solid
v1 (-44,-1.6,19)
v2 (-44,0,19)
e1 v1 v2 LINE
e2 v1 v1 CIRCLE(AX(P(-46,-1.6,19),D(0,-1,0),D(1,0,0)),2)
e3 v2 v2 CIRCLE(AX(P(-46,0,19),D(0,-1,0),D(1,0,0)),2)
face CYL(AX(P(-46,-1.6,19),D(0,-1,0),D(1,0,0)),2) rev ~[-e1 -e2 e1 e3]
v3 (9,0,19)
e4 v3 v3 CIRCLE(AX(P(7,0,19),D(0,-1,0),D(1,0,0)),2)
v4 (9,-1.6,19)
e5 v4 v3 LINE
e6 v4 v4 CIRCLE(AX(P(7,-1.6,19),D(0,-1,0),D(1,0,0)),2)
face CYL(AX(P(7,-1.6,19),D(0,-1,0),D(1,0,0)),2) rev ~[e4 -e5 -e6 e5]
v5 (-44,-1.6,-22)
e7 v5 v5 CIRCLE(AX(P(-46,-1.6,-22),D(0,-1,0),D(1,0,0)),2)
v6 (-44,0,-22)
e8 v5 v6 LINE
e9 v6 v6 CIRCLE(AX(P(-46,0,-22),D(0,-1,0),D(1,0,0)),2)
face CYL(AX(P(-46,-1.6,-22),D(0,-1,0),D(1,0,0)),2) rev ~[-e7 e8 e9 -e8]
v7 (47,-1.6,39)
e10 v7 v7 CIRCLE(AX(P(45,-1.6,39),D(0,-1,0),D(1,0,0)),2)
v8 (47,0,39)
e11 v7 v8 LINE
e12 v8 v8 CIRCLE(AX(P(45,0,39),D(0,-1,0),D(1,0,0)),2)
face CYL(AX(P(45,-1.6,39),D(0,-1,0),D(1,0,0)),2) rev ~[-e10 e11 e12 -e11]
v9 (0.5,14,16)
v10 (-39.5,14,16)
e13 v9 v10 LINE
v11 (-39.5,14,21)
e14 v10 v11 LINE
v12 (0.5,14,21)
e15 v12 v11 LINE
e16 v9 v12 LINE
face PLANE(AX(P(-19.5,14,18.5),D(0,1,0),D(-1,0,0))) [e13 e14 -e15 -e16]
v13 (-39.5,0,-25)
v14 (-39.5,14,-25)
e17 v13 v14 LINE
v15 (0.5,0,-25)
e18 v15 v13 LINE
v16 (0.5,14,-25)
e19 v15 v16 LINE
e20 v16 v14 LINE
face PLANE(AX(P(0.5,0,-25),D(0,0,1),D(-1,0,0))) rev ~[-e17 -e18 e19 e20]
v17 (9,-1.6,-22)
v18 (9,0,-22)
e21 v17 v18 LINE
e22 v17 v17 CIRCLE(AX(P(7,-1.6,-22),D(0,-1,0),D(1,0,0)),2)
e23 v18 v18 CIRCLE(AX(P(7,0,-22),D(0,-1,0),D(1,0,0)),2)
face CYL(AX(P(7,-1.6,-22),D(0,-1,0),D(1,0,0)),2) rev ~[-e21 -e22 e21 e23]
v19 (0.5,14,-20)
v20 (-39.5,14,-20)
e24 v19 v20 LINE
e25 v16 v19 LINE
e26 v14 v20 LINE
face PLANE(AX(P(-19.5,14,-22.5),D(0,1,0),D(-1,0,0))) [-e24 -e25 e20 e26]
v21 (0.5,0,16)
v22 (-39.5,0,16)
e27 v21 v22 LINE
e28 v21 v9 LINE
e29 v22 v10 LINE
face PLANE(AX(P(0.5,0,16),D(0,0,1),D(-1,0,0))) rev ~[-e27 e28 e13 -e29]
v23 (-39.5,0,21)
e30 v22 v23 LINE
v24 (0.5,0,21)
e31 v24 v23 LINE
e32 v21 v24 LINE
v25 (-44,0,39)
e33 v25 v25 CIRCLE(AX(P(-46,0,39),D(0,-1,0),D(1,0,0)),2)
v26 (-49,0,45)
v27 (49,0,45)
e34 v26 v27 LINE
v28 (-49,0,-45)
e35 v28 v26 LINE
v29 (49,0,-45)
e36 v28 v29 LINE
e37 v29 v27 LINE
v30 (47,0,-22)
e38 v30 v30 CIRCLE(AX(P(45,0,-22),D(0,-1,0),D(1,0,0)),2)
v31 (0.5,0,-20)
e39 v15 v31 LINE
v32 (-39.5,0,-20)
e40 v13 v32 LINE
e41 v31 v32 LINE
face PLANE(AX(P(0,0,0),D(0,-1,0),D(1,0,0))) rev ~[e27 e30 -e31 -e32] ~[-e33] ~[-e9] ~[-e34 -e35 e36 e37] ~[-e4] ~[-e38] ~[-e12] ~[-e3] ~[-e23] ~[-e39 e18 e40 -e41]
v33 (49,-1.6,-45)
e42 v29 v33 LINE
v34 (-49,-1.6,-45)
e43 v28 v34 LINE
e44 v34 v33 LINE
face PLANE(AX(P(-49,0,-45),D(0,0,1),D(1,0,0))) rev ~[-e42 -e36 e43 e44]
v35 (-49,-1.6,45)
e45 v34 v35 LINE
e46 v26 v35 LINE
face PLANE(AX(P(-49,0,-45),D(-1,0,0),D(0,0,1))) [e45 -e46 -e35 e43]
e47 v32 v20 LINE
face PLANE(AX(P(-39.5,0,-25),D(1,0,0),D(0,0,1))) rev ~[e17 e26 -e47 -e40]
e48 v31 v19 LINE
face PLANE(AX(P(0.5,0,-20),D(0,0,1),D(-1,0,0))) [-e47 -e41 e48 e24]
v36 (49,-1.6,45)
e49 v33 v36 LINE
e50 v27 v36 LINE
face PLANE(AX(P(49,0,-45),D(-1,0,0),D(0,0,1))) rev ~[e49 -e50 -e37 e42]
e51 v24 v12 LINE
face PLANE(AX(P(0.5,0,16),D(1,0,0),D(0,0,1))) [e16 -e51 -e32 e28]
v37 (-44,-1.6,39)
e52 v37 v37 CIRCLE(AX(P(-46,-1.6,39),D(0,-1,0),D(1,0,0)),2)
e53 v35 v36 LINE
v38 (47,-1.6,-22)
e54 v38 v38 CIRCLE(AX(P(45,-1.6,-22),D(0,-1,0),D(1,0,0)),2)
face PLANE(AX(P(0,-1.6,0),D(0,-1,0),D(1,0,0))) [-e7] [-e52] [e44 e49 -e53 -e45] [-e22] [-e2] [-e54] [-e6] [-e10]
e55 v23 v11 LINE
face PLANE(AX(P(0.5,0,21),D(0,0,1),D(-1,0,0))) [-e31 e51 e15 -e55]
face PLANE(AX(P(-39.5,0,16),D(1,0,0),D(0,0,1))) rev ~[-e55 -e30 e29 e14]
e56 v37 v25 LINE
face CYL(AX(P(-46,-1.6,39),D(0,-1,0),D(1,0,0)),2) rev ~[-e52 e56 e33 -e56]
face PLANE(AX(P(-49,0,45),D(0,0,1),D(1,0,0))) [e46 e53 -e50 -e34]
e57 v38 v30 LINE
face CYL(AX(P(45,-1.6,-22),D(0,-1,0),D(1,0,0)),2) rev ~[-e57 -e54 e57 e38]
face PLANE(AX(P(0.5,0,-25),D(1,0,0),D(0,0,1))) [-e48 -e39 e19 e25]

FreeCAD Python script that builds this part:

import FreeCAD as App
import Part
import Sketcher

V = App.Vector
Q = App.Units.Quantity


def add_polygon(sketch, points):
    """Adds a closed chain of lines whose ends are joined by coincident constraints."""
    first, n = sketch.GeometryCount, len(points)
    for a, b in zip(points, points[1:] + points[:1]):
        sketch.addGeometry(Part.LineSegment(App.Vector(*a, 0), App.Vector(*b, 0)), False)
    for i in range(n):
        sketch.addConstraint(Sketcher.Constraint("Coincident", first + i, 2, first + (i + 1) % n, 1))

doc = App.newDocument("Part")
params = doc.addObject("Spreadsheet::Sheet", "Params")
for row, (alias, value) in enumerate([
    ("sketch1_width", "98 mm"),
    ("sketch1_height", "90 mm"),
    ("pad1_length", "1.6 mm"),
    ("sketch2_diameter", "4 mm"),
    ("pocket1_length", "25 mm"),
    ("sketch3_width", "40 mm"),
    ("sketch3_height", "5 mm"),
    ("pad2_length", "14 mm"),
], start=1):
    params.set(f"A{row}", alias)
    params.set(f"B{row}", "=" + value)
    params.setAlias(f"B{row}", alias)

body = doc.addObject("PartDesign::Body", "Body")

# Sketch on XZ plane
sketch1 = body.newObject("Sketcher::SketchObject", "Sketch")
sketch1.AttachmentSupport = (doc.getObject("XZ_Plane"), [""])
sketch1.MapMode = "FlatFace"
add_polygon(sketch1, [(-49, 45), (-49, -45), (49, -45), (49, 45)])  # lines 0-3
sketch1.addConstraint([
    Sketcher.Constraint("Vertical", 0),
    Sketcher.Constraint("Horizontal", 1),
    Sketcher.Constraint("Vertical", 2),
    Sketcher.Constraint("Horizontal", 3),
    Sketcher.Constraint("Symmetric", 0, 2, 2, 2, -1, 1),
    Sketcher.Constraint("DistanceX", 1, 1, 1, 2, Q("98 mm")),
    Sketcher.Constraint("DistanceY", 0, 2, 0, 1, Q("90 mm")),
])
sketch1.setExpression("Constraints[9]", "Params.sketch1_width")
sketch1.setExpression("Constraints[10]", "Params.sketch1_height")
pad1 = body.newObject("PartDesign::Pad", "Pad")
pad1.Profile = sketch1
pad1.setExpression("Length", "Params.pad1_length")

# Sketch on XZ plane
sketch2 = body.newObject("Sketcher::SketchObject", "Sketch001")
sketch2.AttachmentSupport = (doc.getObject("XZ_Plane"), [""])
sketch2.MapMode = "FlatFace"
sketch2.AttachmentOffset = App.Placement(V(0, 0, 1.6), App.Rotation())
sketch2.addGeometry([
    Part.Circle(V(-46, 39, 0), V(0, 0, 1), 2),  # 0
    Part.Circle(V(-46, 19, 0), V(0, 0, 1), 2),  # 1
    Part.Circle(V(7, 19, 0), V(0, 0, 1), 2),  # 2
    Part.Circle(V(45, 39, 0), V(0, 0, 1), 2),  # 3
    Part.Circle(V(-46, -22, 0), V(0, 0, 1), 2),  # 4
    Part.Circle(V(7, -22, 0), V(0, 0, 1), 2),  # 5
    Part.Circle(V(45, -22, 0), V(0, 0, 1), 2),  # 6
], False)
sketch2.addConstraint([
    Sketcher.Constraint("Equal", 0, 1),
    Sketcher.Constraint("Equal", 1, 2),
    Sketcher.Constraint("Equal", 2, 3),
    Sketcher.Constraint("Equal", 3, 4),
    Sketcher.Constraint("Equal", 4, 5),
    Sketcher.Constraint("Equal", 5, 6),
    Sketcher.Constraint("Horizontal", 1, 3, 2, 3),
    Sketcher.Constraint("Horizontal", 0, 3, 3, 3),
    Sketcher.Constraint("Horizontal", 4, 3, 5, 3),
    Sketcher.Constraint("Horizontal", 5, 3, 6, 3),
    Sketcher.Constraint("Vertical", 0, 3, 1, 3),
    Sketcher.Constraint("Vertical", 1, 3, 4, 3),
    Sketcher.Constraint("Vertical", 2, 3, 5, 3),
    Sketcher.Constraint("Vertical", 3, 3, 6, 3),
    Sketcher.Constraint("Diameter", 0, Q("4 mm")),
    Sketcher.Constraint("DistanceX", 0, 3, -1, 1, Q("46 mm")),
    Sketcher.Constraint("DistanceY", -1, 1, 0, 3, Q("39 mm")),
    Sketcher.Constraint("DistanceY", -1, 1, 1, 3, Q("19 mm")),
    Sketcher.Constraint("DistanceX", -1, 1, 2, 3, Q("7 mm")),
    Sketcher.Constraint("DistanceX", -1, 1, 3, 3, Q("45 mm")),
    Sketcher.Constraint("DistanceY", 4, 3, -1, 1, Q("22 mm")),
])
sketch2.setExpression("Constraints[14]", "Params.sketch2_diameter")
pocket1 = body.newObject("PartDesign::Pocket", "Pocket")
pocket1.Profile = sketch2
pocket1.setExpression("Length", "Params.pocket1_length")

# Sketch on XZ plane
sketch3 = body.newObject("Sketcher::SketchObject", "Sketch002")
sketch3.AttachmentSupport = (doc.getObject("XZ_Plane"), [""])
sketch3.MapMode = "FlatFace"
add_polygon(sketch3, [(0, 21), (0, 16), (-40, 16), (-40, 21)])  # lines 0-3
add_polygon(sketch3, [(0, -20), (0, -25), (-40, -25), (-40, -20)])  # lines 4-7
sketch3.addConstraint([
    Sketcher.Constraint("Vertical", 0),
    Sketcher.Constraint("Horizontal", 1),
    Sketcher.Constraint("Vertical", 2),
    Sketcher.Constraint("Horizontal", 3),
    Sketcher.Constraint("Vertical", 4),
    Sketcher.Constraint("Horizontal", 5),
    Sketcher.Constraint("Vertical", 6),
    Sketcher.Constraint("Horizontal", 7),
    Sketcher.Constraint("Vertical", 3, 2, 4, 2),
    Sketcher.Constraint("Vertical", 2, 2, 5, 2),
    Sketcher.Constraint("Equal", 2, 4),
    Sketcher.Constraint("DistanceX", 1, 2, 1, 1, Q("40 mm")),
    Sketcher.Constraint("DistanceY", 0, 2, 0, 1, Q("5 mm")),
    Sketcher.Constraint("DistanceY", -1, 1, 0, 2, Q("16 mm")),
    Sketcher.Constraint("DistanceY", 4, 2, -1, 1, Q("25 mm")),
    Sketcher.Constraint("DistanceX", -1, 1, 0, 2, Q("0.5 mm")),
])
sketch3.setExpression("Constraints[19]", "Params.sketch3_width")
sketch3.setExpression("Constraints[20]", "Params.sketch3_height")
pad2 = body.newObject("PartDesign::Pad", "Pad001")
pad2.Profile = sketch3
pad2.setExpression("Length", "Params.pad2_length")
pad2.Reversed = True

doc.recompute()
